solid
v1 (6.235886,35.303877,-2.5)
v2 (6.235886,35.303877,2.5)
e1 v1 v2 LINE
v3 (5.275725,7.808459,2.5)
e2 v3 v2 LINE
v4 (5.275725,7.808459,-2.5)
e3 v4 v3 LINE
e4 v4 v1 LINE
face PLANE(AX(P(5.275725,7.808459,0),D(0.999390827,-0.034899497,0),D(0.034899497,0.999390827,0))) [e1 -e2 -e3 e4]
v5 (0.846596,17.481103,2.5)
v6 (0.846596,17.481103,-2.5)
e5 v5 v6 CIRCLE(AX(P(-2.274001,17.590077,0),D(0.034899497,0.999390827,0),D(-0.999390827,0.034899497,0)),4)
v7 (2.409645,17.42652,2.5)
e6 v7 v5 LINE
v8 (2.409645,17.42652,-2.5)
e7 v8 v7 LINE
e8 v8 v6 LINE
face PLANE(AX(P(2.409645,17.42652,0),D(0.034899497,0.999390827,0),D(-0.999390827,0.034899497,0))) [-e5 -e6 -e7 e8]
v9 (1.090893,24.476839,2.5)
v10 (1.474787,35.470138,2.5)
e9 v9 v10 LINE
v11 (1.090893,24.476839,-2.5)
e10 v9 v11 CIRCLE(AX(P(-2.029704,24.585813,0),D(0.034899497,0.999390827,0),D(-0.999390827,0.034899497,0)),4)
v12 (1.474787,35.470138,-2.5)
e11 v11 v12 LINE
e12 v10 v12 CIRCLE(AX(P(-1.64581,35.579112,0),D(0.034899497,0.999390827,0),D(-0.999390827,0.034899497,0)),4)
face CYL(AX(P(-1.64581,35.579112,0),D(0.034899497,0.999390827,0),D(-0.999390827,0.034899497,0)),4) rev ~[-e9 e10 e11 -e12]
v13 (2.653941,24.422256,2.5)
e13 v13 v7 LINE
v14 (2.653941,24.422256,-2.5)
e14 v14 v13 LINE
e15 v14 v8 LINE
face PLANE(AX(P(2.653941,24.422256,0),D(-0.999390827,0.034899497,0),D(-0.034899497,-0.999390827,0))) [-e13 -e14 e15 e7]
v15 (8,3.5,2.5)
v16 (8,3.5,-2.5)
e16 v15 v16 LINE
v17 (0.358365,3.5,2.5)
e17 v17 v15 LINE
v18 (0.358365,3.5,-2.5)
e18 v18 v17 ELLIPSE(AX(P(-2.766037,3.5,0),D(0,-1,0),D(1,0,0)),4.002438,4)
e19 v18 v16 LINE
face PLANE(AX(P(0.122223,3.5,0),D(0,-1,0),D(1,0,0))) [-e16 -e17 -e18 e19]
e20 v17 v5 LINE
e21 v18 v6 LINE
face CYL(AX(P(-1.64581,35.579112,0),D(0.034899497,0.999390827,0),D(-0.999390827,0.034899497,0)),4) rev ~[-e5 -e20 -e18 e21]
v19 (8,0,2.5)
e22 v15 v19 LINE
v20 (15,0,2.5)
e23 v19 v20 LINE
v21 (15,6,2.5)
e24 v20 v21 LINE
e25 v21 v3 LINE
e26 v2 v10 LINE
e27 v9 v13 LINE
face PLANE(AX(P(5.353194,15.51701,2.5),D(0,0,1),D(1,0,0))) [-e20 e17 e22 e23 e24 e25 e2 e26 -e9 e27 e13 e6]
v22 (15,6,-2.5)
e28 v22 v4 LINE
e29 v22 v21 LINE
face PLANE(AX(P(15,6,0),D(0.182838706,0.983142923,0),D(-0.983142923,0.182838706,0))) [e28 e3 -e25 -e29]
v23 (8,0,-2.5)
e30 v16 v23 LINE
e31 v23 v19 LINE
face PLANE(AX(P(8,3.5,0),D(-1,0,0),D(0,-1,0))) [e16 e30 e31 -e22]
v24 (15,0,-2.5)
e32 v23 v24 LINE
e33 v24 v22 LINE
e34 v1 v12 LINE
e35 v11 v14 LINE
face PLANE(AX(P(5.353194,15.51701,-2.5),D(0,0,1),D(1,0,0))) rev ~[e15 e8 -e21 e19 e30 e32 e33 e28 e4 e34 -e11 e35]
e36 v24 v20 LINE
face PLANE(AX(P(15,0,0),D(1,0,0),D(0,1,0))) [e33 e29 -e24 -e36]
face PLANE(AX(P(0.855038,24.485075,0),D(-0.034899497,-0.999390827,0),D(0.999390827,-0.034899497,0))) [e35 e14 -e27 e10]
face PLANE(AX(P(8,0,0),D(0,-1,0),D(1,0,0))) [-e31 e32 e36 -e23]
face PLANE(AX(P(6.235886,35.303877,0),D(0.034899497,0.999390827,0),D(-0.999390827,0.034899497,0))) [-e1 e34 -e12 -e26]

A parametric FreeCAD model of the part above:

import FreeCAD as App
import Part
import Sketcher
from FreeCAD import Vector
Q = App.Units.Quantity


def add_polygon(sketch, points):
    """Adds a closed chain of lines whose ends are joined by coincident constraints."""
    first, n = sketch.GeometryCount, len(points)
    for a, b in zip(points, points[1:] + points[:1]):
        sketch.addGeometry(Part.LineSegment(App.Vector(*a, 0), App.Vector(*b, 0)), False)
    for i in range(n):
        sketch.addConstraint(Sketcher.Constraint("Coincident", first + i, 2, first + (i + 1) % n, 1))

doc = App.newDocument("Part")
body = doc.addObject("PartDesign::Body", "Body")

# Sketch on XY plane
sketch1 = doc.addObject("Sketcher::SketchObject", "Sketch")
body.addObject(sketch1)
sketch1.AttachmentSupport = (doc.XY_Plane, [""])
sketch1.MapMode = "FlatFace"
add_polygon(sketch1, [(8, 3.5), (8, 0), (15, 0), (15, 6), (5.275725, 7.808459), (6.235886, 35.303877), (1.238932, 35.478374), (0.855038, 24.485075), (2.653941, 24.422256), (2.409645, 17.42652), (0.610741, 17.489339), (0.122223, 3.5)])  # lines 0-11
sketch1.addConstraint(Sketcher.Constraint("Vertical", 0))
sketch1.addConstraint(Sketcher.Constraint("Horizontal", 1))
sketch1.addConstraint(Sketcher.Constraint("Vertical", 2))
sketch1.addConstraint(Sketcher.Constraint("Horizontal", 11))
sketch1.addConstraint(Sketcher.Constraint("PointOnObject", 0, 2, -1))
sketch1.addConstraint(Sketcher.Constraint("Perpendicular", 4, 5))
sketch1.addConstraint(Sketcher.Constraint("Perpendicular", 5, 6))
sketch1.addConstraint(Sketcher.Constraint("Perpendicular", 6, 7))
sketch1.addConstraint(Sketcher.Constraint("Perpendicular", 7, 8))
sketch1.addConstraint(Sketcher.Constraint("Perpendicular", 8, 9))
sketch1.addConstraint(Sketcher.Constraint("Perpendicular", 9, 10))
sketch1.addConstraint(Sketcher.Constraint("Equal", 7, 9))
sketch1.addConstraint(Sketcher.Constraint("DistanceX", 1, 1, 1, 2, Q("7 mm")))
sketch1.addConstraint(Sketcher.Constraint("DistanceY", 2, 1, 2, 2, Q("6 mm")))
sketch1.addConstraint(Sketcher.Constraint("Angle", 4, Q("88 deg")))
sketch1.addConstraint(Sketcher.Constraint("Distance", 5, Q("5 mm")))
sketch1.addConstraint(Sketcher.Constraint("Distance", 6, Q("11 mm")))
sketch1.addConstraint(Sketcher.Constraint("Distance", 8, Q("7 mm")))
sketch1.addConstraint(Sketcher.Constraint("DistanceY", 0, 2, 0, 1, Q("3.5 mm")))
sketch1.addConstraint(Sketcher.Constraint("DistanceX", -1, 1, 0, 2, Q("8 mm")))
sketch1.addConstraint(Sketcher.Constraint("Distance", 7, Q("1.8 mm")))
sketch1.addConstraint(Sketcher.Constraint("Distance", 3, Q("9.891008 mm")))
sketch1.addConstraint(Sketcher.Constraint("DistanceX", 11, 1, 11, 2, Q("7.877777 mm")))
sketch1.addConstraint(Sketcher.Constraint("DistanceX", -1, 1, 7, 2, Q("2.653941 mm")))
pad1 = doc.addObject("PartDesign::Pad", "Pad")
body.addObject(pad1)
pad1.Profile = sketch1
pad1.Length = 5
pad1.Midplane = True

# Sketch on an angled plane
sketch2 = doc.addObject("Sketcher::SketchObject", "Sketch001")
body.addObject(sketch2)
sketch2.Placement = App.Placement(Vector(1.238932, 35.478374, 0), App.Rotation(Vector(-0.999390827, 0.034899497, 0), Vector(0, 0, 1), Vector(0.034899497, 0.999390827, 0), "ZXY"))
sketch2.addGeometry(Part.Circle(Vector(2.8865, 0, 0), Vector(0, 0, 1), 4), False)
sketch2.addConstraint(Sketcher.Constraint("PointOnObject", 0, 3, -1))
sketch2.addConstraint(Sketcher.Constraint("Diameter", 0, Q("8 mm")))
sketch2.addConstraint(Sketcher.Constraint("DistanceX", -1, 1, 0, 3, Q("2.8865 mm")))
pocket1 = doc.addObject("PartDesign::Pocket", "Pocket")
body.addObject(pocket1)
pocket1.Profile = sketch2
pocket1.Length = 40

doc.recompute()
